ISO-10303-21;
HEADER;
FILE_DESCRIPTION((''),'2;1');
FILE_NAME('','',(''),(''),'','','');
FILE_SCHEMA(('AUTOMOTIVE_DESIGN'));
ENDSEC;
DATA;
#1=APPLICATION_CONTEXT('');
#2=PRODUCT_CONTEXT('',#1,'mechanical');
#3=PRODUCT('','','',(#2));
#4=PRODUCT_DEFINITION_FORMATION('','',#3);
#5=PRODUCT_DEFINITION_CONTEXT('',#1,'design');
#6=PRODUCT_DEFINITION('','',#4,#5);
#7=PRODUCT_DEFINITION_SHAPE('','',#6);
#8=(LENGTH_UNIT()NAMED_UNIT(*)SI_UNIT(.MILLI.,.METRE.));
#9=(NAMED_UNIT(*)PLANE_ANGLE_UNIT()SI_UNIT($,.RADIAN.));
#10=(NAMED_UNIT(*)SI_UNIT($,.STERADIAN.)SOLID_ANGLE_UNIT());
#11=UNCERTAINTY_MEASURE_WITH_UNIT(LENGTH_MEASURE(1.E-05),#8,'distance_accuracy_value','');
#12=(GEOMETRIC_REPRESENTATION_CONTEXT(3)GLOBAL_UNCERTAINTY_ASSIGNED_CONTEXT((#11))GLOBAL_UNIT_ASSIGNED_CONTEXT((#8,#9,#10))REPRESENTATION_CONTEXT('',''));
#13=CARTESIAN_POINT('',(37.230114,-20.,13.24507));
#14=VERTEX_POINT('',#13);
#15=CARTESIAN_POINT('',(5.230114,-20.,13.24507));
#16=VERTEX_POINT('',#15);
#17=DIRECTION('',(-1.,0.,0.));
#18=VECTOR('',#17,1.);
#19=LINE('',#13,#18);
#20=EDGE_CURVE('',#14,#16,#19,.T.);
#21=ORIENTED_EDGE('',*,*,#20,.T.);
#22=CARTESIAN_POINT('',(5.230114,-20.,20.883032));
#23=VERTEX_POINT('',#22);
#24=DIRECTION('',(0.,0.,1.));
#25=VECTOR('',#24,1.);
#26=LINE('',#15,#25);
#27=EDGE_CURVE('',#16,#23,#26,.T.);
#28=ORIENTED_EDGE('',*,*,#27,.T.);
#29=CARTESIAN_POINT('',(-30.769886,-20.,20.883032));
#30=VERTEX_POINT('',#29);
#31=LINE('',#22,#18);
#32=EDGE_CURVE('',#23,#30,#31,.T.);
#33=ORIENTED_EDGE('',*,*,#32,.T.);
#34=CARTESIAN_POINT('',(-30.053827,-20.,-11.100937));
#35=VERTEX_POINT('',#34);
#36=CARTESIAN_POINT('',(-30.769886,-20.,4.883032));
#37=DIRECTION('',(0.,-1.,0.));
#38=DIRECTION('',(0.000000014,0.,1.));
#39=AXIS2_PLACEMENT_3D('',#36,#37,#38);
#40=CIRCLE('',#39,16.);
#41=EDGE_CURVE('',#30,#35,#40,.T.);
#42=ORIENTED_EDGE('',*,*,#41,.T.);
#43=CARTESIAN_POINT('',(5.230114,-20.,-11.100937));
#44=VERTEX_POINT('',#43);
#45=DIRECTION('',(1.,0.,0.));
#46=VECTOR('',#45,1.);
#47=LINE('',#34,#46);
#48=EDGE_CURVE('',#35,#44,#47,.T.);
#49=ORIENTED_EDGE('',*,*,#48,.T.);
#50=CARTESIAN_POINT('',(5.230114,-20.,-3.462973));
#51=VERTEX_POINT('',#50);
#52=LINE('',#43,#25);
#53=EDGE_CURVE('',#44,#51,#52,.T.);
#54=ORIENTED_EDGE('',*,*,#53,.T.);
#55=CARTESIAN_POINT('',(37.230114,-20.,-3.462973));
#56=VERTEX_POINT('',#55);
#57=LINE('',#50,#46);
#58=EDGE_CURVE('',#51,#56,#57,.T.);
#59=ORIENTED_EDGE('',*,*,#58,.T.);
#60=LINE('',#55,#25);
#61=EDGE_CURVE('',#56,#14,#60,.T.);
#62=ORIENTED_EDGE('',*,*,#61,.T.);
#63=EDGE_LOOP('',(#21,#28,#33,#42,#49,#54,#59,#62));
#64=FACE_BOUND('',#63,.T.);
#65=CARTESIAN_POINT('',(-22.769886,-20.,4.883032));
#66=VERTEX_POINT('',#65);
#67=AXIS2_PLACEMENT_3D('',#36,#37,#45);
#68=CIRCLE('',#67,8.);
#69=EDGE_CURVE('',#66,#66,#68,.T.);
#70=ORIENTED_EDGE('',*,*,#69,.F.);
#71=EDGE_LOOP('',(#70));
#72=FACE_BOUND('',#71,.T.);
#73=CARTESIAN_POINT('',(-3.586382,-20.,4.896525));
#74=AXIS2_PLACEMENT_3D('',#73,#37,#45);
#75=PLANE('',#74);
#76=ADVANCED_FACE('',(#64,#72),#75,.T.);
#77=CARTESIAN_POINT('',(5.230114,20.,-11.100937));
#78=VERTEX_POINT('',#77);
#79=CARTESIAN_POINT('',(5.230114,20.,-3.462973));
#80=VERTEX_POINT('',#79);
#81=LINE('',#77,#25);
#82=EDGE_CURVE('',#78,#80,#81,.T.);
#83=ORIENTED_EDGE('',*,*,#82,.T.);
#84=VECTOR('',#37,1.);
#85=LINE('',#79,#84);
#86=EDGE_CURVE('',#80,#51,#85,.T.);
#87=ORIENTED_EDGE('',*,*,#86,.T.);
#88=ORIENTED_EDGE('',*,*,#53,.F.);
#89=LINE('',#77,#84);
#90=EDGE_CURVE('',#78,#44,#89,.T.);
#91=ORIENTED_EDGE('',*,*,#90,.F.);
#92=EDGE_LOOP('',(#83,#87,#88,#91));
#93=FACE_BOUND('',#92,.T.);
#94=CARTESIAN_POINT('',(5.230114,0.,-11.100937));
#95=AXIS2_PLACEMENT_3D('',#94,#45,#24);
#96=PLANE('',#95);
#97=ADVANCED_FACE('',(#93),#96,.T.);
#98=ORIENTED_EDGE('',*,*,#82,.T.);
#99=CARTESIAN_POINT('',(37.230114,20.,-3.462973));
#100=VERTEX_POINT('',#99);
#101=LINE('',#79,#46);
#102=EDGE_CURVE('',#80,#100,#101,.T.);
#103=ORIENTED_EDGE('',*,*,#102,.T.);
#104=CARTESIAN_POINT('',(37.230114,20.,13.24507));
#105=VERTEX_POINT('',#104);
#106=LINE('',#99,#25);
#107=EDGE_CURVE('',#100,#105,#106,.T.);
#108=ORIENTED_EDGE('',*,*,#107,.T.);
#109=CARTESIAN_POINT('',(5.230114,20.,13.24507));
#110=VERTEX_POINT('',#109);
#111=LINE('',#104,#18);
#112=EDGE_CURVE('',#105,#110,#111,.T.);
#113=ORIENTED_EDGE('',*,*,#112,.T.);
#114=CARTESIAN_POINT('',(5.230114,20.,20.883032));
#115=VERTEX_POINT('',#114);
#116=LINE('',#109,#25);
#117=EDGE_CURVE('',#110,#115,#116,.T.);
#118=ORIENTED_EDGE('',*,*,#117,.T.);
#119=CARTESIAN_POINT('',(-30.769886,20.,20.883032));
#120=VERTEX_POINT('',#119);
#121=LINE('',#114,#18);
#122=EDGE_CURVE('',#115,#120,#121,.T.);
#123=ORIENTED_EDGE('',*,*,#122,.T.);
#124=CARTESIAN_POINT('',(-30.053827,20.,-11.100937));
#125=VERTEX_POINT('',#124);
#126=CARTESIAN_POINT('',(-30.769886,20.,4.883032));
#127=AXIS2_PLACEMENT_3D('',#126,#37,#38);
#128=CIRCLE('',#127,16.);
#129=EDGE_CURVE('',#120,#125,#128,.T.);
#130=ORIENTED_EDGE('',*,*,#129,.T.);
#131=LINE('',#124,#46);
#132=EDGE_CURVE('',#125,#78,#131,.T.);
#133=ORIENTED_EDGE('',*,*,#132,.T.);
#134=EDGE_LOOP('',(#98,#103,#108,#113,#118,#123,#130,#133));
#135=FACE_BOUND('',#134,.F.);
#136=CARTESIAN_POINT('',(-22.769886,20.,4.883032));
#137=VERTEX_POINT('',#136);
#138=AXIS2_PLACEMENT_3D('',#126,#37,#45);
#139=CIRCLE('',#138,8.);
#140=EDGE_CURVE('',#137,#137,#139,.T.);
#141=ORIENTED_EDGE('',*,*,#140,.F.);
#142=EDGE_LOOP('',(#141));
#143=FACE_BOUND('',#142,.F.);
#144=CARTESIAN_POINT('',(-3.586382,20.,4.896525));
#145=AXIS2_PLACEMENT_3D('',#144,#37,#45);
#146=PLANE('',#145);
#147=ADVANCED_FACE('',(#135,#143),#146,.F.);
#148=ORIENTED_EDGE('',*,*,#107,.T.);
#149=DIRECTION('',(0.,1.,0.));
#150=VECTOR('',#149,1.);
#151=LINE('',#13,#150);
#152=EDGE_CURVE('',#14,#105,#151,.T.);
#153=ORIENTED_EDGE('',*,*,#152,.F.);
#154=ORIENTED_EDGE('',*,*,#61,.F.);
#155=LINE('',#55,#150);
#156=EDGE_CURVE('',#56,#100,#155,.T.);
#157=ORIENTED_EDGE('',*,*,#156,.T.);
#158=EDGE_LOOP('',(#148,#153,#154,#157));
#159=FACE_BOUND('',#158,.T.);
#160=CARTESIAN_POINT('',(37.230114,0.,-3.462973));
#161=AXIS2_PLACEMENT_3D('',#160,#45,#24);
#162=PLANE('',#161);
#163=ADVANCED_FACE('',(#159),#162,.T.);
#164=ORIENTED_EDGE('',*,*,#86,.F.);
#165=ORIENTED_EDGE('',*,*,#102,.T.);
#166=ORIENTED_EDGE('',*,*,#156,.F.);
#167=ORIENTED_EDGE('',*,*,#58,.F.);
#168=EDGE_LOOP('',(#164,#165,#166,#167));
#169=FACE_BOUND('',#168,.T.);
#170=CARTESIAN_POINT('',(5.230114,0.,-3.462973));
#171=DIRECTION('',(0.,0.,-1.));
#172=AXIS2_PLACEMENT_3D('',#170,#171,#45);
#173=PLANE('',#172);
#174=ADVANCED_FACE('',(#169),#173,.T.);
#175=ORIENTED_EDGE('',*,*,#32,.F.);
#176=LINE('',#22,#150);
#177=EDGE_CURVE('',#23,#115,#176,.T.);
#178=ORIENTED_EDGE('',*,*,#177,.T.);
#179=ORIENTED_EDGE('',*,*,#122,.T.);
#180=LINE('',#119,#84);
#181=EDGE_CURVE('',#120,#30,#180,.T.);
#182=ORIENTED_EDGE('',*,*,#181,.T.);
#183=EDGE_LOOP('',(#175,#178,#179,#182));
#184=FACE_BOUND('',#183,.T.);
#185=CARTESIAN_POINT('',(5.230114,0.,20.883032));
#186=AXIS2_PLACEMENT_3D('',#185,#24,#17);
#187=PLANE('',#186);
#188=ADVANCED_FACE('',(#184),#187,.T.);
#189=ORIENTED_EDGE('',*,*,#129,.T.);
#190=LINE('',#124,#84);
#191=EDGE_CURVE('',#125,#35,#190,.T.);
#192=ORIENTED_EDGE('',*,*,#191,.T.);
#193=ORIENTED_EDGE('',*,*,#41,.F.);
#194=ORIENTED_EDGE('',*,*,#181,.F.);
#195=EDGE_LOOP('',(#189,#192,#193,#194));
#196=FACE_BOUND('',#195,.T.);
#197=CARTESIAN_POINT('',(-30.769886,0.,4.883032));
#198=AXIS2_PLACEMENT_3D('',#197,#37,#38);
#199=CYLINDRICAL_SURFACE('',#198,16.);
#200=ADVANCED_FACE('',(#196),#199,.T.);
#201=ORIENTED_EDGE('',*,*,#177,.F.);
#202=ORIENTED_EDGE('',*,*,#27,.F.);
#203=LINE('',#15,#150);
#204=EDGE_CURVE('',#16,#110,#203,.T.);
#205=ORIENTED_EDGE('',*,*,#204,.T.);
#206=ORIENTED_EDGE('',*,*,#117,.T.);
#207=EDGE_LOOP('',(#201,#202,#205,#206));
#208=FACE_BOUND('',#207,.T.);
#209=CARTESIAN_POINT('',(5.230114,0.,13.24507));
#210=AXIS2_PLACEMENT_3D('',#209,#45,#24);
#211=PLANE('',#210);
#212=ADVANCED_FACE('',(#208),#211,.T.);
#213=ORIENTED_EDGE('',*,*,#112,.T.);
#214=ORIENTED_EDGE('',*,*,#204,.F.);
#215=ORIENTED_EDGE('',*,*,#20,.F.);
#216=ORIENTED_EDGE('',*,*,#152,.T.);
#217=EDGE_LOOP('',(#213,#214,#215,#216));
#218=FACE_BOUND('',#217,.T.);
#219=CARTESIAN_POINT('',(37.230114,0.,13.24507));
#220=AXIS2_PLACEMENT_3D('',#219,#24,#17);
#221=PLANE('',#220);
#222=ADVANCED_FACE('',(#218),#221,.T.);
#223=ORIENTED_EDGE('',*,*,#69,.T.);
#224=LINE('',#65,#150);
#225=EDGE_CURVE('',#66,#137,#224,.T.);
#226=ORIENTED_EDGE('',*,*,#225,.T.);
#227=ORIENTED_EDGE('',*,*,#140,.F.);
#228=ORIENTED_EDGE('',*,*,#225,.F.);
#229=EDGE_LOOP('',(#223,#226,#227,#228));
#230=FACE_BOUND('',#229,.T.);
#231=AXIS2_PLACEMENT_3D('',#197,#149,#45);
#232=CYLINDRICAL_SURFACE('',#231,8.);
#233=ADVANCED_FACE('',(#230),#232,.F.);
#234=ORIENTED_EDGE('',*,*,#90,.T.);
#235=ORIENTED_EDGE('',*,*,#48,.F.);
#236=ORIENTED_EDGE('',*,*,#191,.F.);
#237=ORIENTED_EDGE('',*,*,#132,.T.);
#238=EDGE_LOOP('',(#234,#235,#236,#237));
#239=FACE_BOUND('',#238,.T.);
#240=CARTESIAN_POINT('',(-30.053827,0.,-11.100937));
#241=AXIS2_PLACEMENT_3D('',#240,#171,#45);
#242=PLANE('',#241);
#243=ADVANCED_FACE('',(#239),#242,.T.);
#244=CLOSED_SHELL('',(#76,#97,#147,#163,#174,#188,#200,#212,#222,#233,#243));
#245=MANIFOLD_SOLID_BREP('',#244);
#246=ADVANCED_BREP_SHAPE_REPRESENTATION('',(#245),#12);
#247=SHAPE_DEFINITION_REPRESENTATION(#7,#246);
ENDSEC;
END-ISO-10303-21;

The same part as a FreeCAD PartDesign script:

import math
import FreeCAD as App
import Part
import Sketcher
Q = App.Units.Quantity

doc = App.newDocument("Part")
body = doc.addObject("PartDesign::Body", "Body")

sketch1 = body.newObject("Sketcher::SketchObject", "Sketch")
sketch1.AttachmentSupport = (doc.getObject("XZ_Plane"), [""])
sketch1.MapMode = "FlatFace"
sketch1.addGeometry([
    Part.LineSegment(App.Vector(5, 21, 0), App.Vector(-31, 21, 0)),
    Part.ArcOfCircle(Part.Circle(App.Vector(-31, 5, 0), App.Vector(0, 0, 1), 16), math.radians(90), math.radians(273)),
    Part.LineSegment(App.Vector(-30, -11, 0), App.Vector(5, -11, 0)),
    Part.LineSegment(App.Vector(5, -11, 0), App.Vector(5, -3, 0)),
    Part.LineSegment(App.Vector(5, -3, 0), App.Vector(37, -3, 0)),
    Part.LineSegment(App.Vector(37, -3, 0), App.Vector(37, 13, 0)),
    Part.LineSegment(App.Vector(37, 13, 0), App.Vector(5, 13, 0)),
    Part.LineSegment(App.Vector(5, 13, 0), App.Vector(5, 21, 0)),
    Part.Circle(App.Vector(-31, 5, 0), App.Vector(0, 0, 1), 8),
], False)
sketch1.addConstraint([
    Sketcher.Constraint("Tangent", 0, 2, 1, 1),
    Sketcher.Constraint("Coincident", 1, 2, 2, 1),
    Sketcher.Constraint("Coincident", 2, 2, 3, 1),
    Sketcher.Constraint("Coincident", 3, 2, 4, 1),
    Sketcher.Constraint("Coincident", 4, 2, 5, 1),
    Sketcher.Constraint("Coincident", 5, 2, 6, 1),
    Sketcher.Constraint("Coincident", 6, 2, 7, 1),
    Sketcher.Constraint("Coincident", 7, 2, 0, 1),
    Sketcher.Constraint("Horizontal", 0),
    Sketcher.Constraint("Horizontal", 2),
    Sketcher.Constraint("Vertical", 3),
    Sketcher.Constraint("Horizontal", 4),
    Sketcher.Constraint("Vertical", 5),
    Sketcher.Constraint("Horizontal", 6),
    Sketcher.Constraint("Vertical", 7),
    Sketcher.Constraint("Coincident", 8, 3, 1, 3),
    Sketcher.Constraint("Vertical", 3, 2, 6, 2),
    Sketcher.Constraint("Diameter", 8, Q("16 mm")),
    Sketcher.Constraint("Radius", 1, Q("16 mm")),
    Sketcher.Constraint("DistanceX", 0, 2, 0, 1, Q("36 mm")),
    Sketcher.Constraint("DistanceX", 4, 1, 4, 2, Q("32 mm")),
    Sketcher.Constraint("DistanceX", 2, 1, 2, 2, Q("35.283941 mm")),
    Sketcher.Constraint("DistanceY", 3, 1, 3, 2, Q("7.637964 mm")),
    Sketcher.Constraint("DistanceY", 5, 1, 5, 2, Q("16.708043 mm")),
    Sketcher.Constraint("DistanceY", -1, 1, 1, 3, Q("4.883032 mm")),
    Sketcher.Constraint("DistanceX", 1, 3, -1, 1, Q("30.769886 mm")),
])
pad1 = body.newObject("PartDesign::Pad", "Pad")
pad1.Profile = sketch1
pad1.Length = 40
pad1.Midplane = True

doc.recompute()
